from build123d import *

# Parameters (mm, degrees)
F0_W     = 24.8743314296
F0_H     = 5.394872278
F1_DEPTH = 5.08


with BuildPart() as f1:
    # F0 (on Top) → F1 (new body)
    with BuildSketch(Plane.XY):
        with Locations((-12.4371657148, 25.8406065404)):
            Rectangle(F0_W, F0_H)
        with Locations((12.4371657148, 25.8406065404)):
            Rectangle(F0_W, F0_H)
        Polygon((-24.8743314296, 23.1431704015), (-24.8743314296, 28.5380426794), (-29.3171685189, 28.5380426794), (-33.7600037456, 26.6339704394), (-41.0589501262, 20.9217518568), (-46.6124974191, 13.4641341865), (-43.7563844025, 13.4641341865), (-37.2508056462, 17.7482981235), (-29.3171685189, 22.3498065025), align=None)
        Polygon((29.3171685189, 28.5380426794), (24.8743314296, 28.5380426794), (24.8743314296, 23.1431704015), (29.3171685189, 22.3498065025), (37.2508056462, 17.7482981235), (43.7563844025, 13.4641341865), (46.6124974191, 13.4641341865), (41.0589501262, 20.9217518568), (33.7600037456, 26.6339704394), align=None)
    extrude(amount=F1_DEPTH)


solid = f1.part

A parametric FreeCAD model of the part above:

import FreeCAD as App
import Part
import Sketcher
from FreeCAD import Vector
Q = App.Units.Quantity

doc = App.newDocument("Part")
body = doc.addObject("PartDesign::Body", "Body")

# Sketch on XY plane
sketch1 = doc.addObject("Sketcher::SketchObject", "Sketch")
body.addObject(sketch1)
sketch1.AttachmentSupport = (doc.XY_Plane, [""])
sketch1.MapMode = "FlatFace"
sketch1.addGeometry([
    Part.LineSegment(Vector(-24.9, 23.1, 0), Vector(24.9, 23.1, 0)),  # 0
    Part.LineSegment(Vector(24.9, 23.1, 0), Vector(29.3, 22.3, 0)),  # 1
    Part.LineSegment(Vector(29.3, 22.3, 0), Vector(37.3, 17.7, 0)),  # 2
    Part.LineSegment(Vector(37.3, 17.7, 0), Vector(43.8, 13.5, 0)),  # 3
    Part.LineSegment(Vector(43.8, 13.5, 0), Vector(46.6, 13.5, 0)),  # 4
    Part.LineSegment(Vector(46.6, 13.5, 0), Vector(41.1, 20.9, 0)),  # 5
    Part.LineSegment(Vector(41.1, 20.9, 0), Vector(33.8, 26.6, 0)),  # 6
    Part.LineSegment(Vector(33.8, 26.6, 0), Vector(29.3, 28.5, 0)),  # 7
    Part.LineSegment(Vector(29.3, 28.5, 0), Vector(-29.3, 28.5, 0)),  # 8
    Part.LineSegment(Vector(-29.3, 28.5, 0), Vector(-33.8, 26.6, 0)),  # 9
    Part.LineSegment(Vector(-33.8, 26.6, 0), Vector(-41.1, 20.9, 0)),  # 10
    Part.LineSegment(Vector(-41.1, 20.9, 0), Vector(-46.6, 13.5, 0)),  # 11
    Part.LineSegment(Vector(-46.6, 13.5, 0), Vector(-43.8, 13.5, 0)),  # 12
    Part.LineSegment(Vector(-43.8, 13.5, 0), Vector(-37.3, 17.7, 0)),  # 13
    Part.LineSegment(Vector(-37.3, 17.7, 0), Vector(-29.3, 22.3, 0)),  # 14
    Part.LineSegment(Vector(-29.3, 22.3, 0), Vector(-24.9, 23.1, 0)),  # 15
], False)
sketch1.addConstraint([
    Sketcher.Constraint("Coincident", 0, 2, 1, 1),
    Sketcher.Constraint("Coincident", 1, 2, 2, 1),
    Sketcher.Constraint("Coincident", 2, 2, 3, 1),
    Sketcher.Constraint("Coincident", 3, 2, 4, 1),
    Sketcher.Constraint("Coincident", 4, 2, 5, 1),
    Sketcher.Constraint("Coincident", 5, 2, 6, 1),
    Sketcher.Constraint("Coincident", 6, 2, 7, 1),
    Sketcher.Constraint("Coincident", 7, 2, 8, 1),
    Sketcher.Constraint("Coincident", 8, 2, 9, 1),
    Sketcher.Constraint("Coincident", 9, 2, 10, 1),
    Sketcher.Constraint("Coincident", 10, 2, 11, 1),
    Sketcher.Constraint("Coincident", 11, 2, 12, 1),
    Sketcher.Constraint("Coincident", 12, 2, 13, 1),
    Sketcher.Constraint("Coincident", 13, 2, 14, 1),
    Sketcher.Constraint("Coincident", 14, 2, 15, 1),
    Sketcher.Constraint("Coincident", 15, 2, 0, 1),
    Sketcher.Constraint("Horizontal", 0),
    Sketcher.Constraint("Horizontal", 4),
    Sketcher.Constraint("Horizontal", 8),
    Sketcher.Constraint("Horizontal", 12),
    Sketcher.Constraint("Symmetric", 6, 2, 9, 2, -2),
    Sketcher.Constraint("Symmetric", 5, 2, 10, 2, -2),
    Sketcher.Constraint("Symmetric", 4, 2, 11, 2, -2),
    Sketcher.Constraint("Symmetric", 2, 2, 13, 2, -2),
    Sketcher.Constraint("Symmetric", 1, 2, 14, 2, -2),
    Sketcher.Constraint("Vertical", 1, 2, 7, 2),
    Sketcher.Constraint("Vertical", 8, 2, 14, 2),
    Sketcher.Constraint("Equal", 4, 12),
    Sketcher.Constraint("Equal", 1, 15),
    Sketcher.Constraint("DistanceY", -1, 1, 2, 2, 17.748298),
    Sketcher.Constraint("DistanceY", 0, 2, 6, 2, 3.4908),
    Sketcher.Constraint("DistanceX", 6, 2, 2, 2, 3.490802),
    Sketcher.Constraint("DistanceX", 8, 2, 0, 2, 54.1915),
    Sketcher.Constraint("Distance", 3, 7.78952),
    Sketcher.Constraint("Distance", 7, 4.833661),
    Sketcher.Constraint("DistanceX", 0, 1, 0, 2, 49.748663),
    Sketcher.Constraint("DistanceX", 4, 1, 4, 2, 2.856113),
    Sketcher.Constraint("DistanceY", -1, 1, 0, 2, 23.14317),
    Sketcher.Constraint("DistanceX", -1, 1, 5, 2, 41.05895),
    Sketcher.Constraint("DistanceY", -1, 1, 5, 2, 20.921752),
    Sketcher.Constraint("DistanceY", 2, 2, 1, 2, 4.601508),
    Sketcher.Constraint("DistanceX", 2, 2, 3, 2, 6.505579),
    Sketcher.Constraint("DistanceX", 1, 2, 4, 2, 17.295329),
])
pad1 = doc.addObject("PartDesign::Pad", "Pad")
body.addObject(pad1)
pad1.Profile = sketch1
pad1.Length = Q("0.2 in")

doc.recompute()
